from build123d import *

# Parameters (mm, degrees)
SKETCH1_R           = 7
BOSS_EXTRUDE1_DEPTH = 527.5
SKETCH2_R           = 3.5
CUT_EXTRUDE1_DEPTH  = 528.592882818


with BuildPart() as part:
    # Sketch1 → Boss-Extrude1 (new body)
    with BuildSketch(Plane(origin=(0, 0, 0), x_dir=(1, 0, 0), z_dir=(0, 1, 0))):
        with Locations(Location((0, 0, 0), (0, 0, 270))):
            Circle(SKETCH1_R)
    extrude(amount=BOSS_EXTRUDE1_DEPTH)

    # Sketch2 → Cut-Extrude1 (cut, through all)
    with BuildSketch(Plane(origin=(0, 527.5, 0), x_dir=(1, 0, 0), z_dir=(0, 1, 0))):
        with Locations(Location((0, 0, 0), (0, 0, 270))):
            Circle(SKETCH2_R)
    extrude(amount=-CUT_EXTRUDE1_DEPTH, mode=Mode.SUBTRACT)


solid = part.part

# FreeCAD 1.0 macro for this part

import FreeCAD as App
import Part
import Sketcher

V = App.Vector

doc = App.newDocument("Part")
body = doc.addObject("PartDesign::Body", "Body")

# Sketch on XZ plane
sketch1 = body.newObject("Sketcher::SketchObject", "Sketch")
sketch1.AttachmentSupport = (doc.getObject("XZ_Plane"), [""])
sketch1.MapMode = "FlatFace"
sketch1.addGeometry(Part.Circle(V(0, 0, 0), V(0, 0, 1), 7), False)
sketch1.addConstraint([
    Sketcher.Constraint("Coincident", 0, 3, -1, 1),
    Sketcher.Constraint("Diameter", 0, 14.0),
])
pad1 = body.newObject("PartDesign::Pad", "Pad")
pad1.Profile = sketch1
pad1.Length = 527.5
pad1.Reversed = True

# Sketch on XZ plane
sketch2 = body.newObject("Sketcher::SketchObject", "Sketch001")
sketch2.AttachmentSupport = (doc.getObject("XZ_Plane"), [""])
sketch2.MapMode = "FlatFace"
sketch2.AttachmentOffset = App.Placement(V(0, 0, -527.5), App.Rotation())
sketch2.addGeometry(Part.Circle(V(0, 0, 0), V(0, 0, 1), 3.5), False)
sketch2.addConstraint([
    Sketcher.Constraint("Coincident", 0, 3, -1, 1),
    Sketcher.Constraint("Diameter", 0, 7.0),
])
pocket1 = body.newObject("PartDesign::Pocket", "Pocket")
pocket1.Profile = sketch2
pocket1.Type = "ThroughAll"
pocket1.Reversed = True

doc.recompute()
